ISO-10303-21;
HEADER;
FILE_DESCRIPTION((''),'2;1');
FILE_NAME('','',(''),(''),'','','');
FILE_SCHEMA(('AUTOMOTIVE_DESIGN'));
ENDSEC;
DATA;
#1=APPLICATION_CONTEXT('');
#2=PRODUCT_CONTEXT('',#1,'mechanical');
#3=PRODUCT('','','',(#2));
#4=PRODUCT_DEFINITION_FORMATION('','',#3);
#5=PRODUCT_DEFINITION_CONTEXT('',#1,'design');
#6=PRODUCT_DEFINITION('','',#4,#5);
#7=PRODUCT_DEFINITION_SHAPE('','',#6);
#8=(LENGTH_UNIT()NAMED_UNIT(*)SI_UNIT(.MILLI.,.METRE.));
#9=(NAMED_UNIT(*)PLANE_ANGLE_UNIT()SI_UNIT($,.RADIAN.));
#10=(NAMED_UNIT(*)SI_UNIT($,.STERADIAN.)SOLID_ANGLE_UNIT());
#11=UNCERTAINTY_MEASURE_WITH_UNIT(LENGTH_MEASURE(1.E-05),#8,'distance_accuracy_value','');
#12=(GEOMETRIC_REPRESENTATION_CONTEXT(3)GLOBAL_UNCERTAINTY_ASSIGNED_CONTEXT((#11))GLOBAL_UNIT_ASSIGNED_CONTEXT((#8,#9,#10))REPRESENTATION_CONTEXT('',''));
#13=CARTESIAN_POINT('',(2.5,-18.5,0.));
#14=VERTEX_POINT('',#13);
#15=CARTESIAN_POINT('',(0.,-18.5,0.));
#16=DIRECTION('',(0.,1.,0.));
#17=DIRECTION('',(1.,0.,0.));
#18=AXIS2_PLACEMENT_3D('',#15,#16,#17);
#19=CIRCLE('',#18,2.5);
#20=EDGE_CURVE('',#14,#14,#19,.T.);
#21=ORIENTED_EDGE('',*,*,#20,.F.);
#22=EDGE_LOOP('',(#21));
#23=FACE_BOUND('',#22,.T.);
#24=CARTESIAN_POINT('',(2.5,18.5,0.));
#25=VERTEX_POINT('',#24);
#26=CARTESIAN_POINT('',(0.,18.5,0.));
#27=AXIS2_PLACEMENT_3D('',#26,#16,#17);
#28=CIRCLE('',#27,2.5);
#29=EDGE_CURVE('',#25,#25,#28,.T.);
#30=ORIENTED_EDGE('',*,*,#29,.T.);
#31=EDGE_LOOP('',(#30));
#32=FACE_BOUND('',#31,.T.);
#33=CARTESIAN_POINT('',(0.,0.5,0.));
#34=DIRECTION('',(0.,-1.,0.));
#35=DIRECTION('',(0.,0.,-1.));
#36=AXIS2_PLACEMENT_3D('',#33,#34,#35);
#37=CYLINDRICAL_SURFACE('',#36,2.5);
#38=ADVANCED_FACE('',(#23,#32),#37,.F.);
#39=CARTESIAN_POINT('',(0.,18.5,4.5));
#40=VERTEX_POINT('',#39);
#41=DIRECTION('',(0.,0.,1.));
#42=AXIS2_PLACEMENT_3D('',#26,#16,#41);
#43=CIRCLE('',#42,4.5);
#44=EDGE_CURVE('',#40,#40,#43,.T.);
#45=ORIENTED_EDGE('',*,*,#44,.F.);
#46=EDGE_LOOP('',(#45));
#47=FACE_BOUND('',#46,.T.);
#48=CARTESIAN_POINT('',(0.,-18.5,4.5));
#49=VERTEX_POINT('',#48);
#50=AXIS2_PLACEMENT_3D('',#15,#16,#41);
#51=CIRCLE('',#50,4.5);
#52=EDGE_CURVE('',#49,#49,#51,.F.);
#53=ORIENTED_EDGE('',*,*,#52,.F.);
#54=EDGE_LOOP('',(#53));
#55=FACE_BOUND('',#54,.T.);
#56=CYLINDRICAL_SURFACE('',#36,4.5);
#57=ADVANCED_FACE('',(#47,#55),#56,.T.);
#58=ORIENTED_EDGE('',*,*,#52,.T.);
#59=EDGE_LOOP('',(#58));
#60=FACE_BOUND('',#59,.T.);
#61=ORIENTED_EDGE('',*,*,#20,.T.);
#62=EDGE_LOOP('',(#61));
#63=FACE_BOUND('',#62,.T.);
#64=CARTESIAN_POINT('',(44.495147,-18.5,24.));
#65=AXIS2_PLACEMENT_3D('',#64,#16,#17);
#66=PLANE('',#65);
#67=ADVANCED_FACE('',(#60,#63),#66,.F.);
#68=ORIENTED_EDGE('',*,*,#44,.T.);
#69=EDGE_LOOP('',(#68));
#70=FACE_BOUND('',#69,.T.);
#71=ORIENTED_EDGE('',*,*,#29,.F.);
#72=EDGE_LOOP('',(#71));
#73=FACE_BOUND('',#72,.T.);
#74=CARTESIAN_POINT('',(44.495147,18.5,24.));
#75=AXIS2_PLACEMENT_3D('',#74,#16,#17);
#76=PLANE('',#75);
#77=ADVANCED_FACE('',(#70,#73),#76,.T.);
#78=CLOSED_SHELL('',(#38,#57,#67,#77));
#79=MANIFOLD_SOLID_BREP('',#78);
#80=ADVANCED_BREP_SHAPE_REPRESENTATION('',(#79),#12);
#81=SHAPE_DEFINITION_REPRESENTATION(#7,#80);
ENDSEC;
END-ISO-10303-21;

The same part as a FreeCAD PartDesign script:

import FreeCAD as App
import Part
import Sketcher

V = App.Vector

doc = App.newDocument("Part")
body = doc.addObject("PartDesign::Body", "Body")

sketch1 = body.newObject("Sketcher::SketchObject", "Sketch")
sketch1.AttachmentSupport = (doc.getObject("XZ_Plane"), [""])
sketch1.MapMode = "FlatFace"
sketch1.addGeometry(Part.Circle(V(0, 0, 0), V(0, 0, 1), 4.5), False)
sketch1.addGeometry(Part.Circle(V(0, 0, 0), V(0, 0, 1), 2.5), False)
sketch1.addConstraint(Sketcher.Constraint("Coincident", 0, 3, -1, 1))
sketch1.addConstraint(Sketcher.Constraint("Coincident", 1, 3, -1, 1))
sketch1.addConstraint(Sketcher.Constraint("Diameter", 0, 9.0))
sketch1.addConstraint(Sketcher.Constraint("Diameter", 1, 5.0))
pad1 = body.newObject("PartDesign::Pad", "Pad")
pad1.Profile = sketch1
pad1.Length = 1
pad1.Midplane = True

sketch2 = body.newObject("Sketcher::SketchObject", "Sketch001")
sketch2.AttachmentSupport = (doc.getObject("XZ_Plane"), [""])
sketch2.MapMode = "FlatFace"
sketch2.addGeometry(Part.Circle(V(0, 0, 0), V(0, 0, 1), 4.5), False)
sketch2.addGeometry(Part.Circle(V(0, 0, 0), V(0, 0, 1), 2.5), False)
sketch2.addConstraint(Sketcher.Constraint("Coincident", 0, 3, -1, 1))
sketch2.addConstraint(Sketcher.Constraint("Coincident", 1, 3, -1, 1))
sketch2.addConstraint(Sketcher.Constraint("Diameter", 0, 9.0))
sketch2.addConstraint(Sketcher.Constraint("Diameter", 1, 5.0))
pad2 = body.newObject("PartDesign::Pad", "Pad001")
pad2.Profile = sketch2
pad2.Type = "TwoLengths"
pad2.Length = 18.5
pad2.Length2 = 18.5
pad2.Reversed = True

doc.recompute()
